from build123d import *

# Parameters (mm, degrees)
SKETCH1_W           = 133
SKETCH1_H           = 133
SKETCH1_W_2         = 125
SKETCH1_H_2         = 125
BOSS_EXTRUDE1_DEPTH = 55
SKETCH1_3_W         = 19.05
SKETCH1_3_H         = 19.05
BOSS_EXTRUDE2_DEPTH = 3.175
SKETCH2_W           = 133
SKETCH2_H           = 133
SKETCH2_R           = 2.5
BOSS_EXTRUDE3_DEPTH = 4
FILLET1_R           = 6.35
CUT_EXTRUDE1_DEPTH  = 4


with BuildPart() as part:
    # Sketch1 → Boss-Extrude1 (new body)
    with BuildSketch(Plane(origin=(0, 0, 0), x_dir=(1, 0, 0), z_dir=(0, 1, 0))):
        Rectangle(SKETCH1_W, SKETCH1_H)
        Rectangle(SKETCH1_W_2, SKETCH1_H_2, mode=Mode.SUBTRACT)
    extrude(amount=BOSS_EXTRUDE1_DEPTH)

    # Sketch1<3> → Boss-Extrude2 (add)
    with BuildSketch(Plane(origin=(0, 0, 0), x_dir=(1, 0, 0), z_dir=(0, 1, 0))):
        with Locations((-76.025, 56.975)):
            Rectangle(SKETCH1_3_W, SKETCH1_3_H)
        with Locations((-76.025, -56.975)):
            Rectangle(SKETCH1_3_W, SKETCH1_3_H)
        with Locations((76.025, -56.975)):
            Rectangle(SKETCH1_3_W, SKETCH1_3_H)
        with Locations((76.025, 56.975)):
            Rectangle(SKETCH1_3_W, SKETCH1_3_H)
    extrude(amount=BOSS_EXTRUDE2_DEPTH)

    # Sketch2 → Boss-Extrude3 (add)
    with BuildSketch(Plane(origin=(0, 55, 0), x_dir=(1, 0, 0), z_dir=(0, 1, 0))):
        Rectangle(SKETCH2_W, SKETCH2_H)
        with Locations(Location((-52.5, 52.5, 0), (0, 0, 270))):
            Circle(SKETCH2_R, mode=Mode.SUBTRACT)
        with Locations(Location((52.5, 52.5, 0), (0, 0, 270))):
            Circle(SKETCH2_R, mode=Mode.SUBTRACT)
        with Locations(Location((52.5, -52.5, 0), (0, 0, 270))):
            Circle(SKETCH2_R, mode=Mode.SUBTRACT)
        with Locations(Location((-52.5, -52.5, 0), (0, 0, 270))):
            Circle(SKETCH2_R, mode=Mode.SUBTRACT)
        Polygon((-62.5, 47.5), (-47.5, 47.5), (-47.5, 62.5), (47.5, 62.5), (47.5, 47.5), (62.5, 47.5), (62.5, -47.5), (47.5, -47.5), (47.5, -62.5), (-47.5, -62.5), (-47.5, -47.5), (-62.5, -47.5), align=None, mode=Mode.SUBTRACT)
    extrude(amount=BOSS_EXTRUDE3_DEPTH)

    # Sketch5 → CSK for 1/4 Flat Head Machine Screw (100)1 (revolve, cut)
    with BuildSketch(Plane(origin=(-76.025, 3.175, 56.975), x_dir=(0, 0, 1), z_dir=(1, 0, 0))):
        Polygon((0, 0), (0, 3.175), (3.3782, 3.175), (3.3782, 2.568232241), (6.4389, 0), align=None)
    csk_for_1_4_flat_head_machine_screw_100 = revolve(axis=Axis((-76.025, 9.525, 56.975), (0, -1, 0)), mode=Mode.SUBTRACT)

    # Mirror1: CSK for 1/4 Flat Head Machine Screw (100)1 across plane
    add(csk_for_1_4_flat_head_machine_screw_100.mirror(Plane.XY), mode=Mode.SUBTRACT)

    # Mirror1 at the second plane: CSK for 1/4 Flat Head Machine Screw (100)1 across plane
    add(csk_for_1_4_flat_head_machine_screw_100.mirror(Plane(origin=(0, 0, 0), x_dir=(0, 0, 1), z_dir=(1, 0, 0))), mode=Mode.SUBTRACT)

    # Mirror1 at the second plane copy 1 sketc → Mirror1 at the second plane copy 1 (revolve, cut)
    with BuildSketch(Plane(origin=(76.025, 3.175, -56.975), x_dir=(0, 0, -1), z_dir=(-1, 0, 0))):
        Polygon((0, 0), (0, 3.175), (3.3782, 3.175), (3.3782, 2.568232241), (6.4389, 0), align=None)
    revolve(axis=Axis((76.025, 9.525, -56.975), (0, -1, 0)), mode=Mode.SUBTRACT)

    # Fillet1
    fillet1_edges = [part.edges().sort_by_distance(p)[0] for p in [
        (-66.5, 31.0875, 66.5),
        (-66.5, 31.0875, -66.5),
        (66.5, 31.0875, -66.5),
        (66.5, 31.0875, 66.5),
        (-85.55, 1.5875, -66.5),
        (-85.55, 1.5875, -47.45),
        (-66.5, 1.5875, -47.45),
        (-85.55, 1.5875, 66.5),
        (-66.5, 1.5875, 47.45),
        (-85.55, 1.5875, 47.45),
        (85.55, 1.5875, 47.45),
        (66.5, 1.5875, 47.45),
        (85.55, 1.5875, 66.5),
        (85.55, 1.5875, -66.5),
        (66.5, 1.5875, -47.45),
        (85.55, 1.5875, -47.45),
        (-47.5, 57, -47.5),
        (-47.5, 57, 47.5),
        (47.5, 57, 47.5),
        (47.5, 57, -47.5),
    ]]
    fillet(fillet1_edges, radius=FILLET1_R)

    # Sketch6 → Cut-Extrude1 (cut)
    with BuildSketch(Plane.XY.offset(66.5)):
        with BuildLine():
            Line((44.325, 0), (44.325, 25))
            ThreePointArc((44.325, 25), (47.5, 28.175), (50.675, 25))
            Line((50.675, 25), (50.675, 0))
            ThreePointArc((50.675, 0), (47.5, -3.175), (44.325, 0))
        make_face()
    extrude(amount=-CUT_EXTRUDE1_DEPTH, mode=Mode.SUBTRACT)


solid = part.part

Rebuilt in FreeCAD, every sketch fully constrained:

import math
import FreeCAD as App
import Part
import Sketcher

V = App.Vector
Q = App.Units.Quantity


def edges_at(feature, points):
    """Names of the edges that pass closest to the given points."""
    edges = feature.Shape.Edges
    near = lambda p: min(range(len(edges)), key=lambda i: edges[i].distToShape(Part.Vertex(*p))[0])
    return sorted({f"Edge{near(p) + 1}" for p in points})


def add_polygon(sketch, points):
    """Adds a closed chain of lines whose ends are joined by coincident constraints."""
    first, n = sketch.GeometryCount, len(points)
    for a, b in zip(points, points[1:] + points[:1]):
        sketch.addGeometry(Part.LineSegment(App.Vector(*a, 0), App.Vector(*b, 0)), False)
    for i in range(n):
        sketch.addConstraint(Sketcher.Constraint("Coincident", first + i, 2, first + (i + 1) % n, 1))

doc = App.newDocument("Part")
body = doc.addObject("PartDesign::Body", "Body")

# Sketch on XZ plane
sketch1 = body.newObject("Sketcher::SketchObject", "Sketch")
sketch1.AttachmentSupport = (doc.getObject("XZ_Plane"), [""])
sketch1.MapMode = "FlatFace"
add_polygon(sketch1, [(-66, -66), (-66, 66), (66, 66), (66, -66)])  # lines 0-3
add_polygon(sketch1, [(62, 62), (-62, 62), (-62, -62), (62, -62)])  # lines 4-7
sketch1.addConstraint(Sketcher.Constraint("Vertical", 0))
sketch1.addConstraint(Sketcher.Constraint("Horizontal", 1))
sketch1.addConstraint(Sketcher.Constraint("Vertical", 2))
sketch1.addConstraint(Sketcher.Constraint("Horizontal", 3))
sketch1.addConstraint(Sketcher.Constraint("Horizontal", 4))
sketch1.addConstraint(Sketcher.Constraint("Vertical", 5))
sketch1.addConstraint(Sketcher.Constraint("Horizontal", 6))
sketch1.addConstraint(Sketcher.Constraint("Vertical", 7))
sketch1.addConstraint(Sketcher.Constraint("Symmetric", 0, 2, 2, 2, -1, 1))
sketch1.addConstraint(Sketcher.Constraint("Symmetric", 4, 2, 6, 2, -1, 1))
sketch1.addConstraint(Sketcher.Constraint("Equal", 3, 0))
sketch1.addConstraint(Sketcher.Constraint("Equal", 6, 5))
sketch1.addConstraint(Sketcher.Constraint("DistanceX", 1, 1, 1, 2, Q("133 mm")))
sketch1.addConstraint(Sketcher.Constraint("DistanceX", 4, 2, 4, 1, Q("125 mm")))
pad1 = body.newObject("PartDesign::Pad", "Pad")
pad1.Profile = sketch1
pad1.Length = 55
pad1.Reversed = True

# Sketch on XZ plane
sketch2 = body.newObject("Sketcher::SketchObject", "Sketch001")
sketch2.AttachmentSupport = (doc.getObject("XZ_Plane"), [""])
sketch2.MapMode = "FlatFace"
add_polygon(sketch2, [(-86, -66), (-86, -47), (-66, -47), (-66, -66)])  # lines 0-3
add_polygon(sketch2, [(-86, 47), (-86, 66), (-66, 66), (-66, 47)])  # lines 4-7
add_polygon(sketch2, [(66, 47), (66, 66), (86, 66), (86, 47)])  # lines 8-11
add_polygon(sketch2, [(66, -66), (66, -47), (86, -47), (86, -66)])  # lines 12-15
sketch2.addConstraint(Sketcher.Constraint("Vertical", 0))
sketch2.addConstraint(Sketcher.Constraint("Horizontal", 1))
sketch2.addConstraint(Sketcher.Constraint("Vertical", 2))
sketch2.addConstraint(Sketcher.Constraint("Horizontal", 3))
sketch2.addConstraint(Sketcher.Constraint("Vertical", 4))
sketch2.addConstraint(Sketcher.Constraint("Horizontal", 5))
sketch2.addConstraint(Sketcher.Constraint("Vertical", 6))
sketch2.addConstraint(Sketcher.Constraint("Horizontal", 7))
sketch2.addConstraint(Sketcher.Constraint("Vertical", 8))
sketch2.addConstraint(Sketcher.Constraint("Horizontal", 9))
sketch2.addConstraint(Sketcher.Constraint("Vertical", 10))
sketch2.addConstraint(Sketcher.Constraint("Horizontal", 11))
sketch2.addConstraint(Sketcher.Constraint("Vertical", 12))
sketch2.addConstraint(Sketcher.Constraint("Horizontal", 13))
sketch2.addConstraint(Sketcher.Constraint("Vertical", 14))
sketch2.addConstraint(Sketcher.Constraint("Horizontal", 15))
sketch2.addConstraint(Sketcher.Constraint("Symmetric", 2, 2, 8, 2, -1, 1))
sketch2.addConstraint(Sketcher.Constraint("Symmetric", 0, 2, 10, 2, -1, 1))
sketch2.addConstraint(Sketcher.Constraint("Symmetric", 6, 2, 12, 2, -1, 1))
sketch2.addConstraint(Sketcher.Constraint("Symmetric", 4, 2, 14, 2, -1, 1))
sketch2.addConstraint(Sketcher.Constraint("Symmetric", 5, 2, 8, 2, -2))
sketch2.addConstraint(Sketcher.Constraint("Symmetric", 7, 2, 10, 2, -2))
sketch2.addConstraint(Sketcher.Constraint("Equal", 15, 0))
sketch2.addConstraint(Sketcher.Constraint("DistanceY", 3, 2, 4, 2, Q("133 mm")))
sketch2.addConstraint(Sketcher.Constraint("DistanceX", 5, 2, 8, 2, Q("133 mm")))
sketch2.addConstraint(Sketcher.Constraint("DistanceX", 1, 1, 1, 2, Q("19.05 mm")))
pad2 = body.newObject("PartDesign::Pad", "Pad001")
pad2.Profile = sketch2
pad2.Length = 3.175
pad2.Reversed = True

# Sketch on XZ plane
sketch3 = body.newObject("Sketcher::SketchObject", "Sketch002")
sketch3.AttachmentSupport = (doc.getObject("XZ_Plane"), [""])
sketch3.MapMode = "FlatFace"
sketch3.AttachmentOffset = App.Placement(V(0, 0, -55), App.Rotation())
add_polygon(sketch3, [(-66.5, -66.5), (-66.5, 66.5), (66.5, 66.5), (66.5, -66.5)])  # lines 0-3
sketch3.addGeometry(Part.Circle(V(-52.5, 52.5, 0), V(0, 0, 1), 2.5), False)  # 4
sketch3.addGeometry(Part.Circle(V(52.5, 52.5, 0), V(0, 0, 1), 2.5), False)  # 5
sketch3.addGeometry(Part.Circle(V(-52.5, -52.5, 0), V(0, 0, 1), 2.5), False)  # 6
add_polygon(sketch3, [(-62.5, 47.5), (-62.5, -47.5), (-47.5, -47.5), (-47.5, -62.5), (47.5, -62.5), (47.5, -47.5), (62.5, -47.5), (62.5, 47.5), (47.5, 47.5), (47.5, 62.5), (-47.5, 62.5), (-47.5, 47.5)])  # lines 7-18
sketch3.addGeometry(Part.Circle(V(52.5, -52.5, 0), V(0, 0, 1), 2.5), False)  # 19
sketch3.addConstraint(Sketcher.Constraint("Vertical", 0))
sketch3.addConstraint(Sketcher.Constraint("Horizontal", 1))
sketch3.addConstraint(Sketcher.Constraint("Vertical", 2))
sketch3.addConstraint(Sketcher.Constraint("Horizontal", 3))
sketch3.addConstraint(Sketcher.Constraint("Vertical", 7))
sketch3.addConstraint(Sketcher.Constraint("Horizontal", 8))
sketch3.addConstraint(Sketcher.Constraint("Vertical", 9))
sketch3.addConstraint(Sketcher.Constraint("Horizontal", 10))
sketch3.addConstraint(Sketcher.Constraint("Vertical", 11))
sketch3.addConstraint(Sketcher.Constraint("Horizontal", 12))
sketch3.addConstraint(Sketcher.Constraint("Vertical", 13))
sketch3.addConstraint(Sketcher.Constraint("Horizontal", 14))
sketch3.addConstraint(Sketcher.Constraint("Vertical", 15))
sketch3.addConstraint(Sketcher.Constraint("Horizontal", 16))
sketch3.addConstraint(Sketcher.Constraint("Vertical", 17))
sketch3.addConstraint(Sketcher.Constraint("Horizontal", 18))
sketch3.addConstraint(Sketcher.Constraint("Equal", 4, 5))
sketch3.addConstraint(Sketcher.Constraint("Equal", 5, 6))
sketch3.addConstraint(Sketcher.Constraint("Equal", 6, 19))
sketch3.addConstraint(Sketcher.Constraint("Symmetric", 5, 3, 6, 3, -1, 1))
sketch3.addConstraint(Sketcher.Constraint("Symmetric", 4, 3, 19, 3, -1, 1))
sketch3.addConstraint(Sketcher.Constraint("Symmetric", 0, 2, 2, 2, -1, 1))
sketch3.addConstraint(Sketcher.Constraint("Symmetric", 7, 2, 13, 2, -1, 1))
sketch3.addConstraint(Sketcher.Constraint("Symmetric", 9, 2, 15, 2, -1, 1))
sketch3.addConstraint(Sketcher.Constraint("Symmetric", 11, 2, 17, 2, -1, 1))
sketch3.addConstraint(Sketcher.Constraint("Symmetric", 4, 3, 5, 3, -2))
sketch3.addConstraint(Sketcher.Constraint("Symmetric", 8, 2, 11, 2, -2))
sketch3.addConstraint(Sketcher.Constraint("Equal", 3, 0))
sketch3.addConstraint(Sketcher.Constraint("Equal", 16, 7))
sketch3.addConstraint(Sketcher.Constraint("Equal", 18, 9))
sketch3.addConstraint(Sketcher.Constraint("Diameter", 4, Q("5 mm")))
sketch3.addConstraint(Sketcher.Constraint("DistanceX", 1, 1, 1, 2, Q("133 mm")))
sketch3.addConstraint(Sketcher.Constraint("DistanceX", 8, 1, 8, 2, Q("15 mm")))
sketch3.addConstraint(Sketcher.Constraint("DistanceX", 10, 1, 10, 2, Q("95 mm")))
sketch3.addConstraint(Sketcher.Constraint("DistanceX", 4, 3, 5, 3, Q("105 mm")))
sketch3.addConstraint(Sketcher.Constraint("DistanceY", 6, 3, 4, 3, Q("105 mm")))
pad3 = body.newObject("PartDesign::Pad", "Pad002")
pad3.Profile = sketch3
pad3.Length = 4
pad3.Reversed = True

# Sketch on YZ plane
sketch4 = body.newObject("Sketcher::SketchObject", "Sketch003")
sketch4.AttachmentSupport = (doc.getObject("YZ_Plane"), [""])
sketch4.MapMode = "FlatFace"
sketch4.AttachmentOffset = App.Placement(V(0, 0, -76.025), App.Rotation())
add_polygon(sketch4, [(0, 57), (3.2, 57), (3.2, 63.4), (0.6, 60.4), (0, 60.4)])  # lines 0-4
sketch4.addGeometry(Part.LineSegment(V(3.2, 57, 0), V(0, 57, 0)), True)  # axis
sketch4.addConstraint(Sketcher.Constraint("Horizontal", 0))
sketch4.addConstraint(Sketcher.Constraint("Vertical", 1))
sketch4.addConstraint(Sketcher.Constraint("Horizontal", 3))
sketch4.addConstraint(Sketcher.Constraint("Vertical", 4))
sketch4.addConstraint(Sketcher.Constraint("Horizontal", 5))
sketch4.addConstraint(Sketcher.Constraint("Coincident", 5, 1, 0, 2))
sketch4.addConstraint(Sketcher.Constraint("PointOnObject", 3, 2, -2))
sketch4.addConstraint(Sketcher.Constraint("PointOnObject", 5, 2, -2))
sketch4.addConstraint(Sketcher.Constraint("Angle", 2, Q("-130 deg")))
sketch4.addConstraint(Sketcher.Constraint("DistanceX", 0, 1, 0, 2, Q("3.175 mm")))
sketch4.addConstraint(Sketcher.Constraint("DistanceY", 1, 1, 1, 2, Q("6.4389 mm")))
sketch4.addConstraint(Sketcher.Constraint("DistanceY", 4, 2, 4, 1, Q("3.3782 mm")))
sketch4.addConstraint(Sketcher.Constraint("DistanceY", -1, 1, 0, 2, Q("56.975 mm")))
groove = body.newObject("PartDesign::Groove", "Groove")
groove.Profile = sketch4
groove.ReferenceAxis = (sketch4, ["Axis0"])
groove.Angle = 360
doc.recompute()

mirrored = body.newObject("PartDesign::Mirrored", "Mirrored")
mirrored.Originals = [groove]
mirrored.MirrorPlane = (doc.getObject("XY_Plane"), [""])
body.Tip = mirrored
doc.recompute()

mirrored2 = body.newObject("PartDesign::Mirrored", "Mirrored001")
mirrored2.Originals = [groove]
mirrored2.MirrorPlane = (doc.getObject("YZ_Plane"), [""])
body.Tip = mirrored2

# Sketch on YZ plane
sketch5 = body.newObject("Sketcher::SketchObject", "Sketch004")
sketch5.AttachmentSupport = (doc.getObject("YZ_Plane"), [""])
sketch5.MapMode = "FlatFace"
sketch5.AttachmentOffset = App.Placement(V(0, 0, 76.025), App.Rotation())
add_polygon(sketch5, [(0, -57), (3.2, -57), (3.2, -63.4), (0.6, -60.4), (0, -60.4)])  # lines 0-4
sketch5.addGeometry(Part.LineSegment(V(3.2, -57, 0), V(0, -57, 0)), True)  # axis
sketch5.addConstraint(Sketcher.Constraint("Horizontal", 0))
sketch5.addConstraint(Sketcher.Constraint("Vertical", 1))
sketch5.addConstraint(Sketcher.Constraint("Horizontal", 3))
sketch5.addConstraint(Sketcher.Constraint("Vertical", 4))
sketch5.addConstraint(Sketcher.Constraint("Horizontal", 5))
sketch5.addConstraint(Sketcher.Constraint("Coincident", 5, 1, 0, 2))
sketch5.addConstraint(Sketcher.Constraint("PointOnObject", 3, 2, -2))
sketch5.addConstraint(Sketcher.Constraint("PointOnObject", 5, 2, -2))
sketch5.addConstraint(Sketcher.Constraint("Angle", 2, Q("130 deg")))
sketch5.addConstraint(Sketcher.Constraint("DistanceX", 0, 1, 0, 2, Q("3.175 mm")))
sketch5.addConstraint(Sketcher.Constraint("DistanceY", 1, 2, 1, 1, Q("6.4389 mm")))
sketch5.addConstraint(Sketcher.Constraint("DistanceY", 4, 1, 4, 2, Q("3.3782 mm")))
sketch5.addConstraint(Sketcher.Constraint("DistanceY", 0, 2, -1, 1, Q("56.975 mm")))
groove2 = body.newObject("PartDesign::Groove", "Groove001")
groove2.Profile = sketch5
groove2.ReferenceAxis = (sketch5, ["Axis0"])
groove2.Angle = 360
doc.recompute()

fillet = body.newObject("PartDesign::Fillet", "Fillet")
fillet.Base = (groove2, edges_at(groove2, [
    (-66.5, 31.087, 66.5),
    (-66.5, 31.087, -66.5),
    (66.5, 31.087, -66.5),
    (66.5, 31.087, 66.5),
    (-85.55, 1.587, -66.5),
    (-85.55, 1.587, -47.45),
    (-66.5, 1.587, -47.45),
    (-85.55, 1.587, 66.5),
    (-66.5, 1.587, 47.45),
    (-85.55, 1.587, 47.45),
    (85.55, 1.587, 47.45),
    (66.5, 1.587, 47.45),
    (85.55, 1.587, 66.5),
    (85.55, 1.587, -66.5),
    (66.5, 1.587, -47.45),
    (85.55, 1.587, -47.45),
    (-47.5, 57, -47.5),
    (-47.5, 57, 47.5),
    (47.5, 57, 47.5),
    (47.5, 57, -47.5),
]))
fillet.Radius = 6.35

# Sketch on XY plane
sketch6 = body.newObject("Sketcher::SketchObject", "Sketch005")
sketch6.AttachmentSupport = (doc.getObject("XY_Plane"), [""])
sketch6.MapMode = "FlatFace"
sketch6.AttachmentOffset = App.Placement(V(0, 0, 66.5), App.Rotation())
sketch6.addGeometry(Part.LineSegment(V(44.3, 25, 0), V(44.3, 0, 0)), False)
sketch6.addGeometry(Part.ArcOfCircle(Part.Circle(V(47.5, 0, 0), V(0, 0, 1), 3.2), math.radians(180), math.radians(360)), False)
sketch6.addGeometry(Part.LineSegment(V(50.7, 0, 0), V(50.7, 25, 0)), False)
sketch6.addGeometry(Part.ArcOfCircle(Part.Circle(V(47.5, 25, 0), V(0, 0, 1), 3.2), math.radians(0), math.radians(180)), False)
sketch6.addConstraint(Sketcher.Constraint("Tangent", 0, 2, 1, 1))
sketch6.addConstraint(Sketcher.Constraint("Tangent", 1, 2, 2, 1))
sketch6.addConstraint(Sketcher.Constraint("Tangent", 2, 2, 3, 1))
sketch6.addConstraint(Sketcher.Constraint("Tangent", 3, 2, 0, 1))
sketch6.addConstraint(Sketcher.Constraint("Vertical", 0))
sketch6.addConstraint(Sketcher.Constraint("Vertical", 2))
sketch6.addConstraint(Sketcher.Constraint("PointOnObject", 1, 3, -1))
sketch6.addConstraint(Sketcher.Constraint("DistanceY", 0, 2, 0, 1, Q("25 mm")))
sketch6.addConstraint(Sketcher.Constraint("Radius", 1, Q("3.175 mm")))
sketch6.addConstraint(Sketcher.Constraint("DistanceX", -1, 1, 1, 3, Q("47.5 mm")))
pocket1 = body.newObject("PartDesign::Pocket", "Pocket")
pocket1.Profile = sketch6
pocket1.Length = 4

doc.recompute()
